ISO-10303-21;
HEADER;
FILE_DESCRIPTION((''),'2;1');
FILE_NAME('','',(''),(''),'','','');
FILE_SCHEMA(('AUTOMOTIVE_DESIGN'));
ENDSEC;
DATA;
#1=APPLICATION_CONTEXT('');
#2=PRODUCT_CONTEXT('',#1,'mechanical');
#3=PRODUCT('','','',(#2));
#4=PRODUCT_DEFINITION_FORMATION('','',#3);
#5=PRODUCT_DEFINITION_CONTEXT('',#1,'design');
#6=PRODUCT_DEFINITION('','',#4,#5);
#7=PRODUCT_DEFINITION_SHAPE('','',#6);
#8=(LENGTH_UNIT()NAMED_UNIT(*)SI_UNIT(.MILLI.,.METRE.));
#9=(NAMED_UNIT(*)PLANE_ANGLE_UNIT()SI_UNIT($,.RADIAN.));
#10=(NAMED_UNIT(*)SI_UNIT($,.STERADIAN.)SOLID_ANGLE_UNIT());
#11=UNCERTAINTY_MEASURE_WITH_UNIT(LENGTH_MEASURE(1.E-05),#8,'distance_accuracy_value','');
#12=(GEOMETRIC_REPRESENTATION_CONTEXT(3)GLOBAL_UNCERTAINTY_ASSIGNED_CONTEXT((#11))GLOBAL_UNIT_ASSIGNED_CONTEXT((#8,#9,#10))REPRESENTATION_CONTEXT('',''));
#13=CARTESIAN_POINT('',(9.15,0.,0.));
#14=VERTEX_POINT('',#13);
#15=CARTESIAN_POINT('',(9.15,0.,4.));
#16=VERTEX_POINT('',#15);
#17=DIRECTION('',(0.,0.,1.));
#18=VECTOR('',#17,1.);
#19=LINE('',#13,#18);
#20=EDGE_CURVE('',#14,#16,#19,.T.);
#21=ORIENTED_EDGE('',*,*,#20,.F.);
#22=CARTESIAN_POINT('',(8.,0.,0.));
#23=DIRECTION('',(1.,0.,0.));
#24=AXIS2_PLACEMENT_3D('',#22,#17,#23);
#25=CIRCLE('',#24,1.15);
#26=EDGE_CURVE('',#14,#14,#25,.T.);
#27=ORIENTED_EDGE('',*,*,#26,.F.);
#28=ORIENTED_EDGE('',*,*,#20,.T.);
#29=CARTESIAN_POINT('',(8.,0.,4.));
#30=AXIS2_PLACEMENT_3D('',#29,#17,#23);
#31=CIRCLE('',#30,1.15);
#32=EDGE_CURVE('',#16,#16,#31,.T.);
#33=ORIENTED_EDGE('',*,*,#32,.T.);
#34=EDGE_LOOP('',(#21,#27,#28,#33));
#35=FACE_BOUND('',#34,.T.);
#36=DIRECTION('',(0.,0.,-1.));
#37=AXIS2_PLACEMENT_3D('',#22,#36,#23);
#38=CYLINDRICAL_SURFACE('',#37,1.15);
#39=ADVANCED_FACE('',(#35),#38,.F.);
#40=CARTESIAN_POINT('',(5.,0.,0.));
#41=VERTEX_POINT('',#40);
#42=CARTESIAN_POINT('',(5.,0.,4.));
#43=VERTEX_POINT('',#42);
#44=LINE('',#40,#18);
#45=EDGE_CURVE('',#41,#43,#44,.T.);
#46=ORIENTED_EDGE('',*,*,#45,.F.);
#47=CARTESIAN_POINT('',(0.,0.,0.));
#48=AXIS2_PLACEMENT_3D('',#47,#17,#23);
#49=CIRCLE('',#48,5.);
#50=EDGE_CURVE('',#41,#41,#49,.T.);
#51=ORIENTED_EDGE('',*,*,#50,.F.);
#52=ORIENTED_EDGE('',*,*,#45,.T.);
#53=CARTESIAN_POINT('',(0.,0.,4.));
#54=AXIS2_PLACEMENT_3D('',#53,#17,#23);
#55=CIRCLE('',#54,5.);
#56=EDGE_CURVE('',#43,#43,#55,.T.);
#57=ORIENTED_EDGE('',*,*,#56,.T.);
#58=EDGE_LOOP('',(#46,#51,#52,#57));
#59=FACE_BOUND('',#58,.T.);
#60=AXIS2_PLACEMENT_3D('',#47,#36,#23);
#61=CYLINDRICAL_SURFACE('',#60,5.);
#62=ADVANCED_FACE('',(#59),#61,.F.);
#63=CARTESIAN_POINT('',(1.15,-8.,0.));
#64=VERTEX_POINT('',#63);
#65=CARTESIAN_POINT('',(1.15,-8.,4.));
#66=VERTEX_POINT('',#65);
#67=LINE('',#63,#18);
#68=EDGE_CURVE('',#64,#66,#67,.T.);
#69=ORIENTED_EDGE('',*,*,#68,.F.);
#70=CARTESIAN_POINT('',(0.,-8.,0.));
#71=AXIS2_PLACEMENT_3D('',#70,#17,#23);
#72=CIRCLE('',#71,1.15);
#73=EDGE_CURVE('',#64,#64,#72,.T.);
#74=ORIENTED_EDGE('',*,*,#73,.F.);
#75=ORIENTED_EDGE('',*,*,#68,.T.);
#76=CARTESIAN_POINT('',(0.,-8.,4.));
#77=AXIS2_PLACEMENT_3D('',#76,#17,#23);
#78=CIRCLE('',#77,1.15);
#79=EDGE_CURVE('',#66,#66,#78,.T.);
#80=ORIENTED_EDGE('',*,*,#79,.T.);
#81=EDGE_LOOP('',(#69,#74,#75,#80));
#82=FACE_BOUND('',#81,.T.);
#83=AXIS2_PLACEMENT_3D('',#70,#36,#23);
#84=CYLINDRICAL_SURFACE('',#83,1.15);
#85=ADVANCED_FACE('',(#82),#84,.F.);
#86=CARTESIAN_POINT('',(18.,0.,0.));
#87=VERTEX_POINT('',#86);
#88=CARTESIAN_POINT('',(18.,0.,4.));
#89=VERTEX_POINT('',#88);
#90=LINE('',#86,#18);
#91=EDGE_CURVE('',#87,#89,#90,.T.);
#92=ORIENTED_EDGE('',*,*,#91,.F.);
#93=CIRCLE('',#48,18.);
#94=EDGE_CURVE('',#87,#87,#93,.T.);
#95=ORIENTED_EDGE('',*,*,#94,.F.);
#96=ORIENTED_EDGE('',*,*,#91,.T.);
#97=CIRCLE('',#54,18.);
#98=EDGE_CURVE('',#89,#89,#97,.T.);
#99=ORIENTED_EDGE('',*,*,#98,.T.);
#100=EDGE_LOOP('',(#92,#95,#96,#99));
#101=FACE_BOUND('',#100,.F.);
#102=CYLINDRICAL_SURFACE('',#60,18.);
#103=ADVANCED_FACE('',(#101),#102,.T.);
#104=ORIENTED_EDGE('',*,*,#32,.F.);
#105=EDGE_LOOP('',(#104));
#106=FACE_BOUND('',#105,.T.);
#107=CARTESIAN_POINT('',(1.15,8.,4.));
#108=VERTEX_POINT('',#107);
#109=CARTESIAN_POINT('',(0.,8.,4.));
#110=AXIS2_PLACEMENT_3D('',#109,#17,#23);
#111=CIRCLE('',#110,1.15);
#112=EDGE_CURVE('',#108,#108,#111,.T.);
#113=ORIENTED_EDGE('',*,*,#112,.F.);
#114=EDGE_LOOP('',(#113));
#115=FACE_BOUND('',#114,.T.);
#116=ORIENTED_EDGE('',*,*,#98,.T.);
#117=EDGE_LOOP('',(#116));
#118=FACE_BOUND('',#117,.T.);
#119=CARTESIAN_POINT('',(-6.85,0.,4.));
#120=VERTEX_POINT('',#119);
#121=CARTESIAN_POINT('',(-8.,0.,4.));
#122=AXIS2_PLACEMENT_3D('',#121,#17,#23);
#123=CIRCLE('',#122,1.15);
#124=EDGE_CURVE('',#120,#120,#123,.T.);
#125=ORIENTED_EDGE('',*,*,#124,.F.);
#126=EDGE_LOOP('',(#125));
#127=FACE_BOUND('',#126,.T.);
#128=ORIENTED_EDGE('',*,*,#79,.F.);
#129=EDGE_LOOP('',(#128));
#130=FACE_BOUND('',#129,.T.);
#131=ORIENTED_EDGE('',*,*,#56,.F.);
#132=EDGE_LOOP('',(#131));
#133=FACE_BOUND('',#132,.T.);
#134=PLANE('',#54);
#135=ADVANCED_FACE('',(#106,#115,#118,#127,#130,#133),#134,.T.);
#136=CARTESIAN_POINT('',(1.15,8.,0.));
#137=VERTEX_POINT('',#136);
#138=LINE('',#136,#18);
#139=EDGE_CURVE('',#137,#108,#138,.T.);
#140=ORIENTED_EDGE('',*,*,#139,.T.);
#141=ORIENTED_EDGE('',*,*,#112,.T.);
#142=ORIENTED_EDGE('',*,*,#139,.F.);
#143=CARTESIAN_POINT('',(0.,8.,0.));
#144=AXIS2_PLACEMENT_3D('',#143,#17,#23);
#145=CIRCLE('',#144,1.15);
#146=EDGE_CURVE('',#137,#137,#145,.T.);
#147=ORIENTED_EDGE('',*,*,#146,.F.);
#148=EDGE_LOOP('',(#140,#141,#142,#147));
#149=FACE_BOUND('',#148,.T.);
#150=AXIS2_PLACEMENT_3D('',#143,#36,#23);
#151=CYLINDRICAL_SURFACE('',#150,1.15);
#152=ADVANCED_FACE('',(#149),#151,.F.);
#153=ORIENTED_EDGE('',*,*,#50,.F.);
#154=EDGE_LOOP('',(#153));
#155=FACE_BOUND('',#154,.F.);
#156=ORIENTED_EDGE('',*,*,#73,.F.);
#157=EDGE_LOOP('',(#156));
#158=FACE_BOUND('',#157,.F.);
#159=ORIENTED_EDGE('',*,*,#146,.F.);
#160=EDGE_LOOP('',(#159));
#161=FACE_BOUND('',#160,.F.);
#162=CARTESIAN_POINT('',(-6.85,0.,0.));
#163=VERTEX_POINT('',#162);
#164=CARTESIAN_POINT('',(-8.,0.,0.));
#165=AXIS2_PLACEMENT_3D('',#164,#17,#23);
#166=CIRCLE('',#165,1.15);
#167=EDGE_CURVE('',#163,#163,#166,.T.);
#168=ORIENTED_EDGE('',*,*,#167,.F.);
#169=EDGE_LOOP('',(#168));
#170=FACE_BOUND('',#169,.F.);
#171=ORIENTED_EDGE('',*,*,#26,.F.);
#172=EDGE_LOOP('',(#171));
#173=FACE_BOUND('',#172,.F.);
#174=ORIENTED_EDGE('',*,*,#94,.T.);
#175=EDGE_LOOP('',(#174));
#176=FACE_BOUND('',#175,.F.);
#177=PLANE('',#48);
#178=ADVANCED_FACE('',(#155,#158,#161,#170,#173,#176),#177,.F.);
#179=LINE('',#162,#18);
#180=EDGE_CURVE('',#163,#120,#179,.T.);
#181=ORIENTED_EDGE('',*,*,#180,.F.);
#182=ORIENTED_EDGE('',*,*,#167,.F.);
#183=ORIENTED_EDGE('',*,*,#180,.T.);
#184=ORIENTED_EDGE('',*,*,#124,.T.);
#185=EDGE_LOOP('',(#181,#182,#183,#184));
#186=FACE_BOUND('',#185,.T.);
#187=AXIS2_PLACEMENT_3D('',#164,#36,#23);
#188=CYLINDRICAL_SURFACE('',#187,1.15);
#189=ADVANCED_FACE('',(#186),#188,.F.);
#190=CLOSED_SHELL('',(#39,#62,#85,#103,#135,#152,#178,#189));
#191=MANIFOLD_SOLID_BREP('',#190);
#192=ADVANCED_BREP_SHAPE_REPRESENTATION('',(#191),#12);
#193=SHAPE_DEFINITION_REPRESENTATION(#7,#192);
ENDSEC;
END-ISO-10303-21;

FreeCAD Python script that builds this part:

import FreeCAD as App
import Part
import Sketcher

doc = App.newDocument("Part")
body = doc.addObject("PartDesign::Body", "Body")

sketch1 = body.newObject("Sketcher::SketchObject", "Sketch")
sketch1.AttachmentSupport = (doc.getObject("XY_Plane"), [""])
sketch1.MapMode = "FlatFace"
sketch1.addGeometry([
    Part.Circle(App.Vector(0, 0, 0), App.Vector(0, 0, 1), 18),
    Part.Circle(App.Vector(0, -8, 0), App.Vector(0, 0, 1), 1.1),
    Part.Circle(App.Vector(-8, 0, 0), App.Vector(0, 0, 1), 1.1),
    Part.Circle(App.Vector(0, 0, 0), App.Vector(0, 0, 1), 5),
    Part.Circle(App.Vector(8, 0, 0), App.Vector(0, 0, 1), 1.1),
    Part.Circle(App.Vector(0, 8, 0), App.Vector(0, 0, 1), 1.1),
], False)
sketch1.addConstraint([
    Sketcher.Constraint("Coincident", 0, 3, -1, 1),
    Sketcher.Constraint("Coincident", 3, 3, -1, 1),
    Sketcher.Constraint("Equal", 1, 2),
    Sketcher.Constraint("Equal", 2, 4),
    Sketcher.Constraint("Equal", 4, 5),
    Sketcher.Constraint("Symmetric", 2, 3, 4, 3, -1, 1),
    Sketcher.Constraint("Symmetric", 1, 3, 5, 3, -1, 1),
    Sketcher.Constraint("PointOnObject", 1, 3, -2),
    Sketcher.Constraint("PointOnObject", 2, 3, -1),
    Sketcher.Constraint("Diameter", 0, 36.0),
    Sketcher.Constraint("Diameter", 3, 10.0),
    Sketcher.Constraint("Diameter", 1, 2.3),
    Sketcher.Constraint("DistanceY", 1, 3, -1, 1, 8.0),
    Sketcher.Constraint("DistanceX", 2, 3, -1, 1, 8.0),
])
pad1 = body.newObject("PartDesign::Pad", "Pad")
pad1.Profile = sketch1
pad1.Length = 4

doc.recompute()
